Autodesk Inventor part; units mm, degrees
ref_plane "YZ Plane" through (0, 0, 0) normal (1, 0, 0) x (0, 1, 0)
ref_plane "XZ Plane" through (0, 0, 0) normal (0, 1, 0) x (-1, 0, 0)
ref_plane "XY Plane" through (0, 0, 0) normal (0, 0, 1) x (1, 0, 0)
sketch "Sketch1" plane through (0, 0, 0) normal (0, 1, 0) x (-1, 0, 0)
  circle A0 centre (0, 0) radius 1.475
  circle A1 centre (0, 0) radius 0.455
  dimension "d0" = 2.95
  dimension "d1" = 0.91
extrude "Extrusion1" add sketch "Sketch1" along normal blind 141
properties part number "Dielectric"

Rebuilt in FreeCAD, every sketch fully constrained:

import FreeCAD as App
import Part
import Sketcher
from FreeCAD import Vector

doc = App.newDocument("Part")
body = doc.addObject("PartDesign::Body", "Body")

# Sketch on XZ plane
sketch1 = body.newObject("Sketcher::SketchObject", "Sketch")
sketch1.AttachmentSupport = (doc.getObject("XZ_Plane"), [""])
sketch1.MapMode = "FlatFace"
sketch1.addGeometry([
    Part.Circle(Vector(0, 0, 0), Vector(0, 0, 1), 1.48),
    Part.Circle(Vector(0, 0, 0), Vector(0, 0, 1), 0.46),
], False)
sketch1.addConstraint([
    Sketcher.Constraint("Coincident", 0, 3, -1, 1),
    Sketcher.Constraint("Coincident", 1, 3, -1, 1),
    Sketcher.Constraint("Diameter", 0, 2.95),
    Sketcher.Constraint("Diameter", 1, 0.91),
])
pad1 = body.newObject("PartDesign::Pad", "Pad")
pad1.Profile = sketch1
pad1.Length = 141
pad1.Reversed = True

doc.recompute()
